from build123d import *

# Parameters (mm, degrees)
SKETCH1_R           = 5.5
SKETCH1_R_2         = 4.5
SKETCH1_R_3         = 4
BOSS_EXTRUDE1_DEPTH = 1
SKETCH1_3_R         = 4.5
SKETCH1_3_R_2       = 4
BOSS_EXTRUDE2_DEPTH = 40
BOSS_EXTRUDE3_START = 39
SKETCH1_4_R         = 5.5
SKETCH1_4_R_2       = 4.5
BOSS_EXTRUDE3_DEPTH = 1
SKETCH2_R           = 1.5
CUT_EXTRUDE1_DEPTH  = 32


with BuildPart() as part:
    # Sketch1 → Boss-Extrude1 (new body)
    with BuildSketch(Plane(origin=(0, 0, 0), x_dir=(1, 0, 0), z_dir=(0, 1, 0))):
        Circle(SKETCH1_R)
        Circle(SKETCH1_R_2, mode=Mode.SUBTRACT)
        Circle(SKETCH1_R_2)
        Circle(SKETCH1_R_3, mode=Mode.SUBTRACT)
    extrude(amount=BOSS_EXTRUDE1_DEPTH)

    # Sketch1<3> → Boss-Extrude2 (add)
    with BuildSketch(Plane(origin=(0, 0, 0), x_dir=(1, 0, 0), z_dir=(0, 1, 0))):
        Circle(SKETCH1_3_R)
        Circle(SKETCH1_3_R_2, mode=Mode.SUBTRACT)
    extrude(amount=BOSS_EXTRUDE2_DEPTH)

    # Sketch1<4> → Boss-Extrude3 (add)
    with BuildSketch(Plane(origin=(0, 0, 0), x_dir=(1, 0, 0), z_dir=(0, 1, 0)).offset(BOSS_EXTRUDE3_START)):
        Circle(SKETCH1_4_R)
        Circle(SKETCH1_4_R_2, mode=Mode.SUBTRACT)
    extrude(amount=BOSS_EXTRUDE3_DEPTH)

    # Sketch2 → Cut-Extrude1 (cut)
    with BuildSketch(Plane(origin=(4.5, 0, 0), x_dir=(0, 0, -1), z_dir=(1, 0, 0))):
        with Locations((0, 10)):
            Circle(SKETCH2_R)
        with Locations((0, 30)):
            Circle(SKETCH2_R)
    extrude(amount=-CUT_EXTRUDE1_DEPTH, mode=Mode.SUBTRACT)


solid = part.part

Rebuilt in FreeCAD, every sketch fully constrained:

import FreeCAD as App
import Part
import Sketcher

V = App.Vector
Q = App.Units.Quantity

doc = App.newDocument("Part")
body = doc.addObject("PartDesign::Body", "Body")

# Sketch on XZ plane
sketch1 = body.newObject("Sketcher::SketchObject", "Sketch")
sketch1.AttachmentSupport = (doc.getObject("XZ_Plane"), [""])
sketch1.MapMode = "FlatFace"
sketch1.addGeometry(Part.Circle(V(0, 0, 0), V(0, 0, 1), 5.5), False)
sketch1.addGeometry(Part.Circle(V(0, 0, 0), V(0, 0, 1), 4), False)
sketch1.addConstraint(Sketcher.Constraint("Coincident", 0, 3, -1, 1))
sketch1.addConstraint(Sketcher.Constraint("Coincident", 1, 3, -1, 1))
sketch1.addConstraint(Sketcher.Constraint("Diameter", 0, Q("11 mm")))
sketch1.addConstraint(Sketcher.Constraint("Diameter", 1, Q("8 mm")))
pad1 = body.newObject("PartDesign::Pad", "Pad")
pad1.Profile = sketch1
pad1.Length = 1
pad1.Reversed = True

# Sketch on XZ plane
sketch2 = body.newObject("Sketcher::SketchObject", "Sketch001")
sketch2.AttachmentSupport = (doc.getObject("XZ_Plane"), [""])
sketch2.MapMode = "FlatFace"
sketch2.addGeometry(Part.Circle(V(0, 0, 0), V(0, 0, 1), 4.5), False)
sketch2.addGeometry(Part.Circle(V(0, 0, 0), V(0, 0, 1), 4), False)
sketch2.addConstraint(Sketcher.Constraint("Coincident", 0, 3, -1, 1))
sketch2.addConstraint(Sketcher.Constraint("Coincident", 1, 3, -1, 1))
sketch2.addConstraint(Sketcher.Constraint("Diameter", 0, Q("9 mm")))
sketch2.addConstraint(Sketcher.Constraint("Diameter", 1, Q("8 mm")))
pad2 = body.newObject("PartDesign::Pad", "Pad001")
pad2.Profile = sketch2
pad2.Length = 40
pad2.Reversed = True

# Sketch on XZ plane
sketch3 = body.newObject("Sketcher::SketchObject", "Sketch002")
sketch3.AttachmentSupport = (doc.getObject("XZ_Plane"), [""])
sketch3.MapMode = "FlatFace"
sketch3.AttachmentOffset = App.Placement(V(0, 0, -39), App.Rotation())
sketch3.addGeometry(Part.Circle(V(0, 0, 0), V(0, 0, 1), 5.5), False)
sketch3.addGeometry(Part.Circle(V(0, 0, 0), V(0, 0, 1), 4.5), False)
sketch3.addConstraint(Sketcher.Constraint("Coincident", 0, 3, -1, 1))
sketch3.addConstraint(Sketcher.Constraint("Coincident", 1, 3, -1, 1))
sketch3.addConstraint(Sketcher.Constraint("Diameter", 0, Q("11 mm")))
sketch3.addConstraint(Sketcher.Constraint("Diameter", 1, Q("9 mm")))
pad3 = body.newObject("PartDesign::Pad", "Pad002")
pad3.Profile = sketch3
pad3.Length = 1
pad3.Reversed = True

# Sketch on YZ plane
sketch4 = body.newObject("Sketcher::SketchObject", "Sketch003")
sketch4.AttachmentSupport = (doc.getObject("YZ_Plane"), [""])
sketch4.MapMode = "FlatFace"
sketch4.AttachmentOffset = App.Placement(V(0, 0, 4.5), App.Rotation())
sketch4.addGeometry(Part.Circle(V(10, 0, 0), V(0, 0, 1), 1.5), False)
sketch4.addGeometry(Part.Circle(V(30, 0, 0), V(0, 0, 1), 1.5), False)
sketch4.addConstraint(Sketcher.Constraint("Equal", 0, 1))
sketch4.addConstraint(Sketcher.Constraint("PointOnObject", 0, 3, -1))
sketch4.addConstraint(Sketcher.Constraint("PointOnObject", 1, 3, -1))
sketch4.addConstraint(Sketcher.Constraint("Diameter", 0, Q("3 mm")))
sketch4.addConstraint(Sketcher.Constraint("DistanceX", -1, 1, 0, 3, Q("10 mm")))
sketch4.addConstraint(Sketcher.Constraint("DistanceX", -1, 1, 1, 3, Q("30 mm")))
pocket1 = body.newObject("PartDesign::Pocket", "Pocket")
pocket1.Profile = sketch4
pocket1.Length = 32

doc.recompute()
